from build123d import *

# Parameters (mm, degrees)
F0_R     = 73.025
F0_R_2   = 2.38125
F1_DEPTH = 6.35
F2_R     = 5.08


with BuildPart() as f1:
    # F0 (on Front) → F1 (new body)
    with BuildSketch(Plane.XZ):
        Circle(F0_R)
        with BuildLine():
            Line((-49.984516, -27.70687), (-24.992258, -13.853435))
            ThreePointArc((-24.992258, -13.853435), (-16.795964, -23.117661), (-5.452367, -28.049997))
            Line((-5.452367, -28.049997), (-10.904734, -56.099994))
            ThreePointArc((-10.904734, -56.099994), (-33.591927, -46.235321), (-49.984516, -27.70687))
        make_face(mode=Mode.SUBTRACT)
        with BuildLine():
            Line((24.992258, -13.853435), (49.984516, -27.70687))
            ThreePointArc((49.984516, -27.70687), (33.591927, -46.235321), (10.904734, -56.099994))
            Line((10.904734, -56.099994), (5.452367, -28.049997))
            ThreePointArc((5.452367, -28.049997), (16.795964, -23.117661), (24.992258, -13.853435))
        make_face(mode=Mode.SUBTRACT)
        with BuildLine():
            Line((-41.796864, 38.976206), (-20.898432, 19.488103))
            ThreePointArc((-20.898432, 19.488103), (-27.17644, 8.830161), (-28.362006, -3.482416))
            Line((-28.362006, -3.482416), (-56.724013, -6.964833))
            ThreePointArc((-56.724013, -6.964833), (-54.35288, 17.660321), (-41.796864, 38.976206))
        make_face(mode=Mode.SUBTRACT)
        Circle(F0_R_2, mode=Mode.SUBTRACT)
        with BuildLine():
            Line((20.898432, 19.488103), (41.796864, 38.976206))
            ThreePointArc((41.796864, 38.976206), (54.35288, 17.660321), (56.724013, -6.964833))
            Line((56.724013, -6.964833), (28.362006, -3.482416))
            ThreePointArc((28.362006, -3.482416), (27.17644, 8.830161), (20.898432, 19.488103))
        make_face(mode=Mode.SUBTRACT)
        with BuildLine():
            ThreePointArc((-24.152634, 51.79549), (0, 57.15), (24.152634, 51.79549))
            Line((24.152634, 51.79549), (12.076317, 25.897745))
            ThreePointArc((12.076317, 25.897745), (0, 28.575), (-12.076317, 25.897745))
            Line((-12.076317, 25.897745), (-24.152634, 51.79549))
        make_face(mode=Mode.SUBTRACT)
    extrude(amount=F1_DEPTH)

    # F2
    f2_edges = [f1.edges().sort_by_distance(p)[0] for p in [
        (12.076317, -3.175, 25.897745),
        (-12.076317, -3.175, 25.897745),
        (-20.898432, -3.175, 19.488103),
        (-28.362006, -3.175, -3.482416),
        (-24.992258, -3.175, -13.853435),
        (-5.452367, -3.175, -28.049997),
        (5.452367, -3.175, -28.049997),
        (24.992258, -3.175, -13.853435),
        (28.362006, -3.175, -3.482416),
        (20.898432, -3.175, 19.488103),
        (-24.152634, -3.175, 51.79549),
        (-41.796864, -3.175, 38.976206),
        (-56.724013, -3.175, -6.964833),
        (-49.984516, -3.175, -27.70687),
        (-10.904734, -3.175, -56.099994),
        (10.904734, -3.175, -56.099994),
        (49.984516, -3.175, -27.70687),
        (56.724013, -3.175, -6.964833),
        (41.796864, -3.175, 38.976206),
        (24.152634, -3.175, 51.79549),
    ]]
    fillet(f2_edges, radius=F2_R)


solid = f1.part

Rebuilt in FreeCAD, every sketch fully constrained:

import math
import FreeCAD as App
import Part
import Sketcher

V = App.Vector
Q = App.Units.Quantity


def edges_at(feature, points):
    """Names of the edges that pass closest to the given points."""
    edges = feature.Shape.Edges
    near = lambda p: min(range(len(edges)), key=lambda i: edges[i].distToShape(Part.Vertex(*p))[0])
    return sorted({f"Edge{near(p) + 1}" for p in points})

doc = App.newDocument("Part")
body = doc.addObject("PartDesign::Body", "Body")

# Sketch on XZ plane
sketch1 = body.newObject("Sketcher::SketchObject", "Sketch")
sketch1.AttachmentSupport = (doc.getObject("XZ_Plane"), [""])
sketch1.MapMode = "FlatFace"
sketch1.addGeometry(Part.Circle(V(0, 0, 0), V(0, 0, 1), 73), False)
sketch1.addGeometry(Part.ArcOfCircle(Part.Circle(V(0, 0, 0), V(0, 0, 1), 57.2), math.radians(-151), math.radians(-101)), False)
sketch1.addGeometry(Part.LineSegment(V(-50, -27.7, 0), V(-25, -13.9, 0)), False)
sketch1.addGeometry(Part.ArcOfCircle(Part.Circle(V(0, 0, 0), V(0, 0, 1), 28.6), math.radians(-151), math.radians(-101)), False)
sketch1.addGeometry(Part.LineSegment(V(-5.5, -28, 0), V(-10.9, -56.1, 0)), False)
sketch1.addGeometry(Part.ArcOfCircle(Part.Circle(V(0, 0, 0), V(0, 0, 1), 28.6), math.radians(-79), math.radians(-29)), False)
sketch1.addGeometry(Part.LineSegment(V(25, -13.9, 0), V(50, -27.7, 0)), False)
sketch1.addGeometry(Part.ArcOfCircle(Part.Circle(V(0, 0, 0), V(0, 0, 1), 57.2), math.radians(-79), math.radians(-29)), False)
sketch1.addGeometry(Part.LineSegment(V(10.9, -56.1, 0), V(5.5, -28, 0)), False)
sketch1.addGeometry(Part.Circle(V(0, 0, 0), V(0, 0, 1), 2.4), False)
sketch1.addGeometry(Part.ArcOfCircle(Part.Circle(V(0, 0, 0), V(0, 0, 1), 57.2), math.radians(137), math.radians(187)), False)
sketch1.addGeometry(Part.LineSegment(V(-41.8, 39, 0), V(-20.9, 19.5, 0)), False)
sketch1.addGeometry(Part.ArcOfCircle(Part.Circle(V(0, 0, 0), V(0, 0, 1), 28.6), math.radians(137), math.radians(187)), False)
sketch1.addGeometry(Part.LineSegment(V(-28.4, -3.5, 0), V(-56.7, -7, 0)), False)
sketch1.addGeometry(Part.ArcOfCircle(Part.Circle(V(0, 0, 0), V(0, 0, 1), 28.6), math.radians(-7), math.radians(43)), False)
sketch1.addGeometry(Part.LineSegment(V(20.9, 19.5, 0), V(41.8, 39, 0)), False)
sketch1.addGeometry(Part.ArcOfCircle(Part.Circle(V(0, 0, 0), V(0, 0, 1), 57.2), math.radians(-7), math.radians(43)), False)
sketch1.addGeometry(Part.LineSegment(V(56.7, -7, 0), V(28.4, -3.5, 0)), False)
sketch1.addGeometry(Part.LineSegment(V(-12.1, 25.9, 0), V(-24.2, 51.8, 0)), False)
sketch1.addGeometry(Part.ArcOfCircle(Part.Circle(V(0, 0, 0), V(0, 0, 1), 57.2), math.radians(65), math.radians(115)), False)
sketch1.addGeometry(Part.LineSegment(V(24.2, 51.8, 0), V(12.1, 25.9, 0)), False)
sketch1.addGeometry(Part.ArcOfCircle(Part.Circle(V(0, 0, 0), V(0, 0, 1), 28.6), math.radians(65), math.radians(115)), False)
sketch1.addConstraint(Sketcher.Constraint("Coincident", 1, 1, 2, 1))
sketch1.addConstraint(Sketcher.Constraint("Coincident", 2, 2, 3, 1))
sketch1.addConstraint(Sketcher.Constraint("Coincident", 3, 2, 4, 1))
sketch1.addConstraint(Sketcher.Constraint("Coincident", 4, 2, 1, 2))
sketch1.addConstraint(Sketcher.Constraint("Coincident", 5, 2, 6, 1))
sketch1.addConstraint(Sketcher.Constraint("Coincident", 6, 2, 7, 2))
sketch1.addConstraint(Sketcher.Constraint("Coincident", 7, 1, 8, 1))
sketch1.addConstraint(Sketcher.Constraint("Coincident", 8, 2, 5, 1))
sketch1.addConstraint(Sketcher.Constraint("Coincident", 10, 1, 11, 1))
sketch1.addConstraint(Sketcher.Constraint("Coincident", 11, 2, 12, 1))
sketch1.addConstraint(Sketcher.Constraint("Coincident", 12, 2, 13, 1))
sketch1.addConstraint(Sketcher.Constraint("Coincident", 13, 2, 10, 2))
sketch1.addConstraint(Sketcher.Constraint("Coincident", 14, 2, 15, 1))
sketch1.addConstraint(Sketcher.Constraint("Coincident", 15, 2, 16, 2))
sketch1.addConstraint(Sketcher.Constraint("Coincident", 16, 1, 17, 1))
sketch1.addConstraint(Sketcher.Constraint("Coincident", 17, 2, 14, 1))
sketch1.addConstraint(Sketcher.Constraint("Coincident", 18, 2, 19, 2))
sketch1.addConstraint(Sketcher.Constraint("Coincident", 19, 1, 20, 1))
sketch1.addConstraint(Sketcher.Constraint("Coincident", 20, 2, 21, 1))
sketch1.addConstraint(Sketcher.Constraint("Coincident", 21, 2, 18, 1))
sketch1.addConstraint(Sketcher.Constraint("Coincident", 0, 3, -1, 1))
sketch1.addConstraint(Sketcher.Constraint("Coincident", 1, 3, -1, 1))
sketch1.addConstraint(Sketcher.Constraint("Coincident", 3, 3, -1, 1))
sketch1.addConstraint(Sketcher.Constraint("Coincident", 5, 3, -1, 1))
sketch1.addConstraint(Sketcher.Constraint("Coincident", 7, 3, -1, 1))
sketch1.addConstraint(Sketcher.Constraint("Coincident", 9, 3, -1, 1))
sketch1.addConstraint(Sketcher.Constraint("Coincident", 10, 3, -1, 1))
sketch1.addConstraint(Sketcher.Constraint("Coincident", 12, 3, -1, 1))
sketch1.addConstraint(Sketcher.Constraint("Coincident", 14, 3, -1, 1))
sketch1.addConstraint(Sketcher.Constraint("Coincident", 16, 3, -1, 1))
sketch1.addConstraint(Sketcher.Constraint("Coincident", 19, 3, -1, 1))
sketch1.addConstraint(Sketcher.Constraint("Coincident", 21, 3, -1, 1))
sketch1.addConstraint(Sketcher.Constraint("Equal", 3, 5))
sketch1.addConstraint(Sketcher.Constraint("Equal", 1, 7))
sketch1.addConstraint(Sketcher.Constraint("Equal", 5, 12))
sketch1.addConstraint(Sketcher.Constraint("Equal", 12, 14))
sketch1.addConstraint(Sketcher.Constraint("Equal", 10, 16))
sketch1.addConstraint(Sketcher.Constraint("Equal", 16, 19))
sketch1.addConstraint(Sketcher.Constraint("Horizontal", 2, 2, 5, 2))
sketch1.addConstraint(Sketcher.Constraint("Horizontal", 1, 1, 6, 2))
sketch1.addConstraint(Sketcher.Constraint("Horizontal", 4, 2, 7, 1))
sketch1.addConstraint(Sketcher.Constraint("Horizontal", 3, 2, 8, 2))
sketch1.addConstraint(Sketcher.Constraint("Horizontal", 11, 2, 14, 2))
sketch1.addConstraint(Sketcher.Constraint("Horizontal", 10, 1, 15, 2))
sketch1.addConstraint(Sketcher.Constraint("Horizontal", 13, 2, 16, 1))
sketch1.addConstraint(Sketcher.Constraint("Horizontal", 12, 2, 17, 2))
sketch1.addConstraint(Sketcher.Constraint("Horizontal", 18, 2, 19, 1))
sketch1.addConstraint(Sketcher.Constraint("Horizontal", 20, 2, 21, 2))
sketch1.addConstraint(Sketcher.Constraint("Equal", 8, 11))
sketch1.addConstraint(Sketcher.Constraint("Equal", 17, 18))
sketch1.addConstraint(Sketcher.Constraint("Diameter", 0, Q("5.75 in")))
sketch1.addConstraint(Sketcher.Constraint("Radius", 1, Q("2.2500002 in")))
sketch1.addConstraint(Sketcher.Constraint("Diameter", 9, Q("0.1875 in")))
sketch1.addConstraint(Sketcher.Constraint("Angle", 2, Q("29 deg")))
sketch1.addConstraint(Sketcher.Constraint("Angle", 4, Q("-101 deg")))
sketch1.addConstraint(Sketcher.Constraint("Angle", 11, Q("-43 deg")))
sketch1.addConstraint(Sketcher.Constraint("Angle", 13, Q("-172.999999 deg")))
sketch1.addConstraint(Sketcher.Constraint("Angle", 18, Q("115 deg")))
sketch1.addConstraint(Sketcher.Constraint("Radius", 3, Q("1.1249998 in")))
sketch1.addConstraint(Sketcher.Constraint("DistanceX", 3, 2, 7, 1, 16.357101))
sketch1.addConstraint(Sketcher.Constraint("DistanceY", 7, 3, 11, 2, 19.4881))
sketch1.addConstraint(Sketcher.Constraint("DistanceY", 2, 2, 13, 2, 6.888602))
sketch1.addConstraint(Sketcher.Constraint("DistanceX", 18, 2, 11, 2, 3.254202))
sketch1.addConstraint(Sketcher.Constraint("DistanceY", 1, 1, -1, 1, 27.70687))
pad1 = body.newObject("PartDesign::Pad", "Pad")
pad1.Profile = sketch1
pad1.Length = Q("0.25 in")
doc.recompute()

fillet = body.newObject("PartDesign::Fillet", "Fillet")
fillet.Base = (pad1, edges_at(pad1, [
    (12.076, -3.175, 25.898),
    (-12.076, -3.175, 25.898),
    (-20.898, -3.175, 19.488),
    (-28.362, -3.175, -3.482),
    (-24.992, -3.175, -13.853),
    (-5.452, -3.175, -28.05),
    (5.452, -3.175, -28.05),
    (24.992, -3.175, -13.853),
    (28.362, -3.175, -3.482),
    (20.898, -3.175, 19.488),
    (-24.153, -3.175, 51.795),
    (-41.797, -3.175, 38.976),
    (-56.724, -3.175, -6.965),
    (-49.985, -3.175, -27.707),
    (-10.905, -3.175, -56.1),
    (10.905, -3.175, -56.1),
    (49.985, -3.175, -27.707),
    (56.724, -3.175, -6.965),
    (41.797, -3.175, 38.976),
    (24.153, -3.175, 51.795),
]))
fillet.Radius = Q("0.2 in")

doc.recompute()
